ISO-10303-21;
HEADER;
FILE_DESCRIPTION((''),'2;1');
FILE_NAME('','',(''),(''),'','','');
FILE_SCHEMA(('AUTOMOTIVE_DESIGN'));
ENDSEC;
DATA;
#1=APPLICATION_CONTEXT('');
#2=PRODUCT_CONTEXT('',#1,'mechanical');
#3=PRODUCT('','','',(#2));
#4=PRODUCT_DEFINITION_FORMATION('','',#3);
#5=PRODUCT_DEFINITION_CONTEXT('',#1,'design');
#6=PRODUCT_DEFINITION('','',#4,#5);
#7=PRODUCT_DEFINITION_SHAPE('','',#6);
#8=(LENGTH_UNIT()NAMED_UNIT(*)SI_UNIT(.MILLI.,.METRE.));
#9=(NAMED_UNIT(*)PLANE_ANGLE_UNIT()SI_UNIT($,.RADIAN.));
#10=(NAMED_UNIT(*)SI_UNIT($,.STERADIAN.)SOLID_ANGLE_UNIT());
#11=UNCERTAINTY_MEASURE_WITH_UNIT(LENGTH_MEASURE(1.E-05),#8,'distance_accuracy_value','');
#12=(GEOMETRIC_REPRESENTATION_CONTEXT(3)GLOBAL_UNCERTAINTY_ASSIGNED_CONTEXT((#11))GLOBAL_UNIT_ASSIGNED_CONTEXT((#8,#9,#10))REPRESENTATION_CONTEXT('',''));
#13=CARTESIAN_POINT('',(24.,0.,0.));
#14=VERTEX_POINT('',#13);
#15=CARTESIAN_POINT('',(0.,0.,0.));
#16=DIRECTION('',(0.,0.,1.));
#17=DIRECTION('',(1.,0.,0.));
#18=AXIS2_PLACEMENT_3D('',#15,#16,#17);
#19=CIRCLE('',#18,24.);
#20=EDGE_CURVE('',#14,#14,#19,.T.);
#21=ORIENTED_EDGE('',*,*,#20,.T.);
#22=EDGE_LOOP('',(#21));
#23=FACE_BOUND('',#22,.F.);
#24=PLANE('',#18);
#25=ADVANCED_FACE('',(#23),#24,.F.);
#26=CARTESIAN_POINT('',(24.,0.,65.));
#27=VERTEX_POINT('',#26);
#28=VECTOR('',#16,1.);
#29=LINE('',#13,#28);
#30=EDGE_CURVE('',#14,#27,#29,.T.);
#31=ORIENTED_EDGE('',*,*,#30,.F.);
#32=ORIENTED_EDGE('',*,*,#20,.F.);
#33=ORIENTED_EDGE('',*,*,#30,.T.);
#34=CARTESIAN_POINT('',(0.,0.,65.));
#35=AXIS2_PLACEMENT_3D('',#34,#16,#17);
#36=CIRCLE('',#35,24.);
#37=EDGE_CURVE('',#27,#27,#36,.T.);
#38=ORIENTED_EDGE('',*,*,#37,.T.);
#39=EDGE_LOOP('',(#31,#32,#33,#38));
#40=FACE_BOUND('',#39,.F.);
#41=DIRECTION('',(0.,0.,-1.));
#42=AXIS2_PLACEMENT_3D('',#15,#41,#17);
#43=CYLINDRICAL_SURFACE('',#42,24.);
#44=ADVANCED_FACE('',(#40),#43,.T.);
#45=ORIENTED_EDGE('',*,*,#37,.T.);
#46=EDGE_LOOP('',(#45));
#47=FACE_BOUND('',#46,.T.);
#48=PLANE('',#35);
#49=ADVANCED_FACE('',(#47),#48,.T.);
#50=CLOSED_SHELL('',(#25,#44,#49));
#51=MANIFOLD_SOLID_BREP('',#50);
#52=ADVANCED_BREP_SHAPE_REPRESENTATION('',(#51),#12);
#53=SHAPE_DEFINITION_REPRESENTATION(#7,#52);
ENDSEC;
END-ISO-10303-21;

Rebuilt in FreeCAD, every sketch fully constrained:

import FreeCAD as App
import Part
import Sketcher

V = App.Vector

doc = App.newDocument("Part")
body = doc.addObject("PartDesign::Body", "Body")

# Sketch on XY plane
sketch1 = body.newObject("Sketcher::SketchObject", "Sketch")
sketch1.AttachmentSupport = (doc.getObject("XY_Plane"), [""])
sketch1.MapMode = "FlatFace"
sketch1.addGeometry(Part.Circle(V(0, 0, 0), V(0, 0, 1), 24), False)
sketch1.addConstraint([
    Sketcher.Constraint("Coincident", 0, 3, -1, 1),
    Sketcher.Constraint("Diameter", 0, 48.0),
])
pad1 = body.newObject("PartDesign::Pad", "Pad")
pad1.Profile = sketch1
pad1.Length = 65

doc.recompute()
